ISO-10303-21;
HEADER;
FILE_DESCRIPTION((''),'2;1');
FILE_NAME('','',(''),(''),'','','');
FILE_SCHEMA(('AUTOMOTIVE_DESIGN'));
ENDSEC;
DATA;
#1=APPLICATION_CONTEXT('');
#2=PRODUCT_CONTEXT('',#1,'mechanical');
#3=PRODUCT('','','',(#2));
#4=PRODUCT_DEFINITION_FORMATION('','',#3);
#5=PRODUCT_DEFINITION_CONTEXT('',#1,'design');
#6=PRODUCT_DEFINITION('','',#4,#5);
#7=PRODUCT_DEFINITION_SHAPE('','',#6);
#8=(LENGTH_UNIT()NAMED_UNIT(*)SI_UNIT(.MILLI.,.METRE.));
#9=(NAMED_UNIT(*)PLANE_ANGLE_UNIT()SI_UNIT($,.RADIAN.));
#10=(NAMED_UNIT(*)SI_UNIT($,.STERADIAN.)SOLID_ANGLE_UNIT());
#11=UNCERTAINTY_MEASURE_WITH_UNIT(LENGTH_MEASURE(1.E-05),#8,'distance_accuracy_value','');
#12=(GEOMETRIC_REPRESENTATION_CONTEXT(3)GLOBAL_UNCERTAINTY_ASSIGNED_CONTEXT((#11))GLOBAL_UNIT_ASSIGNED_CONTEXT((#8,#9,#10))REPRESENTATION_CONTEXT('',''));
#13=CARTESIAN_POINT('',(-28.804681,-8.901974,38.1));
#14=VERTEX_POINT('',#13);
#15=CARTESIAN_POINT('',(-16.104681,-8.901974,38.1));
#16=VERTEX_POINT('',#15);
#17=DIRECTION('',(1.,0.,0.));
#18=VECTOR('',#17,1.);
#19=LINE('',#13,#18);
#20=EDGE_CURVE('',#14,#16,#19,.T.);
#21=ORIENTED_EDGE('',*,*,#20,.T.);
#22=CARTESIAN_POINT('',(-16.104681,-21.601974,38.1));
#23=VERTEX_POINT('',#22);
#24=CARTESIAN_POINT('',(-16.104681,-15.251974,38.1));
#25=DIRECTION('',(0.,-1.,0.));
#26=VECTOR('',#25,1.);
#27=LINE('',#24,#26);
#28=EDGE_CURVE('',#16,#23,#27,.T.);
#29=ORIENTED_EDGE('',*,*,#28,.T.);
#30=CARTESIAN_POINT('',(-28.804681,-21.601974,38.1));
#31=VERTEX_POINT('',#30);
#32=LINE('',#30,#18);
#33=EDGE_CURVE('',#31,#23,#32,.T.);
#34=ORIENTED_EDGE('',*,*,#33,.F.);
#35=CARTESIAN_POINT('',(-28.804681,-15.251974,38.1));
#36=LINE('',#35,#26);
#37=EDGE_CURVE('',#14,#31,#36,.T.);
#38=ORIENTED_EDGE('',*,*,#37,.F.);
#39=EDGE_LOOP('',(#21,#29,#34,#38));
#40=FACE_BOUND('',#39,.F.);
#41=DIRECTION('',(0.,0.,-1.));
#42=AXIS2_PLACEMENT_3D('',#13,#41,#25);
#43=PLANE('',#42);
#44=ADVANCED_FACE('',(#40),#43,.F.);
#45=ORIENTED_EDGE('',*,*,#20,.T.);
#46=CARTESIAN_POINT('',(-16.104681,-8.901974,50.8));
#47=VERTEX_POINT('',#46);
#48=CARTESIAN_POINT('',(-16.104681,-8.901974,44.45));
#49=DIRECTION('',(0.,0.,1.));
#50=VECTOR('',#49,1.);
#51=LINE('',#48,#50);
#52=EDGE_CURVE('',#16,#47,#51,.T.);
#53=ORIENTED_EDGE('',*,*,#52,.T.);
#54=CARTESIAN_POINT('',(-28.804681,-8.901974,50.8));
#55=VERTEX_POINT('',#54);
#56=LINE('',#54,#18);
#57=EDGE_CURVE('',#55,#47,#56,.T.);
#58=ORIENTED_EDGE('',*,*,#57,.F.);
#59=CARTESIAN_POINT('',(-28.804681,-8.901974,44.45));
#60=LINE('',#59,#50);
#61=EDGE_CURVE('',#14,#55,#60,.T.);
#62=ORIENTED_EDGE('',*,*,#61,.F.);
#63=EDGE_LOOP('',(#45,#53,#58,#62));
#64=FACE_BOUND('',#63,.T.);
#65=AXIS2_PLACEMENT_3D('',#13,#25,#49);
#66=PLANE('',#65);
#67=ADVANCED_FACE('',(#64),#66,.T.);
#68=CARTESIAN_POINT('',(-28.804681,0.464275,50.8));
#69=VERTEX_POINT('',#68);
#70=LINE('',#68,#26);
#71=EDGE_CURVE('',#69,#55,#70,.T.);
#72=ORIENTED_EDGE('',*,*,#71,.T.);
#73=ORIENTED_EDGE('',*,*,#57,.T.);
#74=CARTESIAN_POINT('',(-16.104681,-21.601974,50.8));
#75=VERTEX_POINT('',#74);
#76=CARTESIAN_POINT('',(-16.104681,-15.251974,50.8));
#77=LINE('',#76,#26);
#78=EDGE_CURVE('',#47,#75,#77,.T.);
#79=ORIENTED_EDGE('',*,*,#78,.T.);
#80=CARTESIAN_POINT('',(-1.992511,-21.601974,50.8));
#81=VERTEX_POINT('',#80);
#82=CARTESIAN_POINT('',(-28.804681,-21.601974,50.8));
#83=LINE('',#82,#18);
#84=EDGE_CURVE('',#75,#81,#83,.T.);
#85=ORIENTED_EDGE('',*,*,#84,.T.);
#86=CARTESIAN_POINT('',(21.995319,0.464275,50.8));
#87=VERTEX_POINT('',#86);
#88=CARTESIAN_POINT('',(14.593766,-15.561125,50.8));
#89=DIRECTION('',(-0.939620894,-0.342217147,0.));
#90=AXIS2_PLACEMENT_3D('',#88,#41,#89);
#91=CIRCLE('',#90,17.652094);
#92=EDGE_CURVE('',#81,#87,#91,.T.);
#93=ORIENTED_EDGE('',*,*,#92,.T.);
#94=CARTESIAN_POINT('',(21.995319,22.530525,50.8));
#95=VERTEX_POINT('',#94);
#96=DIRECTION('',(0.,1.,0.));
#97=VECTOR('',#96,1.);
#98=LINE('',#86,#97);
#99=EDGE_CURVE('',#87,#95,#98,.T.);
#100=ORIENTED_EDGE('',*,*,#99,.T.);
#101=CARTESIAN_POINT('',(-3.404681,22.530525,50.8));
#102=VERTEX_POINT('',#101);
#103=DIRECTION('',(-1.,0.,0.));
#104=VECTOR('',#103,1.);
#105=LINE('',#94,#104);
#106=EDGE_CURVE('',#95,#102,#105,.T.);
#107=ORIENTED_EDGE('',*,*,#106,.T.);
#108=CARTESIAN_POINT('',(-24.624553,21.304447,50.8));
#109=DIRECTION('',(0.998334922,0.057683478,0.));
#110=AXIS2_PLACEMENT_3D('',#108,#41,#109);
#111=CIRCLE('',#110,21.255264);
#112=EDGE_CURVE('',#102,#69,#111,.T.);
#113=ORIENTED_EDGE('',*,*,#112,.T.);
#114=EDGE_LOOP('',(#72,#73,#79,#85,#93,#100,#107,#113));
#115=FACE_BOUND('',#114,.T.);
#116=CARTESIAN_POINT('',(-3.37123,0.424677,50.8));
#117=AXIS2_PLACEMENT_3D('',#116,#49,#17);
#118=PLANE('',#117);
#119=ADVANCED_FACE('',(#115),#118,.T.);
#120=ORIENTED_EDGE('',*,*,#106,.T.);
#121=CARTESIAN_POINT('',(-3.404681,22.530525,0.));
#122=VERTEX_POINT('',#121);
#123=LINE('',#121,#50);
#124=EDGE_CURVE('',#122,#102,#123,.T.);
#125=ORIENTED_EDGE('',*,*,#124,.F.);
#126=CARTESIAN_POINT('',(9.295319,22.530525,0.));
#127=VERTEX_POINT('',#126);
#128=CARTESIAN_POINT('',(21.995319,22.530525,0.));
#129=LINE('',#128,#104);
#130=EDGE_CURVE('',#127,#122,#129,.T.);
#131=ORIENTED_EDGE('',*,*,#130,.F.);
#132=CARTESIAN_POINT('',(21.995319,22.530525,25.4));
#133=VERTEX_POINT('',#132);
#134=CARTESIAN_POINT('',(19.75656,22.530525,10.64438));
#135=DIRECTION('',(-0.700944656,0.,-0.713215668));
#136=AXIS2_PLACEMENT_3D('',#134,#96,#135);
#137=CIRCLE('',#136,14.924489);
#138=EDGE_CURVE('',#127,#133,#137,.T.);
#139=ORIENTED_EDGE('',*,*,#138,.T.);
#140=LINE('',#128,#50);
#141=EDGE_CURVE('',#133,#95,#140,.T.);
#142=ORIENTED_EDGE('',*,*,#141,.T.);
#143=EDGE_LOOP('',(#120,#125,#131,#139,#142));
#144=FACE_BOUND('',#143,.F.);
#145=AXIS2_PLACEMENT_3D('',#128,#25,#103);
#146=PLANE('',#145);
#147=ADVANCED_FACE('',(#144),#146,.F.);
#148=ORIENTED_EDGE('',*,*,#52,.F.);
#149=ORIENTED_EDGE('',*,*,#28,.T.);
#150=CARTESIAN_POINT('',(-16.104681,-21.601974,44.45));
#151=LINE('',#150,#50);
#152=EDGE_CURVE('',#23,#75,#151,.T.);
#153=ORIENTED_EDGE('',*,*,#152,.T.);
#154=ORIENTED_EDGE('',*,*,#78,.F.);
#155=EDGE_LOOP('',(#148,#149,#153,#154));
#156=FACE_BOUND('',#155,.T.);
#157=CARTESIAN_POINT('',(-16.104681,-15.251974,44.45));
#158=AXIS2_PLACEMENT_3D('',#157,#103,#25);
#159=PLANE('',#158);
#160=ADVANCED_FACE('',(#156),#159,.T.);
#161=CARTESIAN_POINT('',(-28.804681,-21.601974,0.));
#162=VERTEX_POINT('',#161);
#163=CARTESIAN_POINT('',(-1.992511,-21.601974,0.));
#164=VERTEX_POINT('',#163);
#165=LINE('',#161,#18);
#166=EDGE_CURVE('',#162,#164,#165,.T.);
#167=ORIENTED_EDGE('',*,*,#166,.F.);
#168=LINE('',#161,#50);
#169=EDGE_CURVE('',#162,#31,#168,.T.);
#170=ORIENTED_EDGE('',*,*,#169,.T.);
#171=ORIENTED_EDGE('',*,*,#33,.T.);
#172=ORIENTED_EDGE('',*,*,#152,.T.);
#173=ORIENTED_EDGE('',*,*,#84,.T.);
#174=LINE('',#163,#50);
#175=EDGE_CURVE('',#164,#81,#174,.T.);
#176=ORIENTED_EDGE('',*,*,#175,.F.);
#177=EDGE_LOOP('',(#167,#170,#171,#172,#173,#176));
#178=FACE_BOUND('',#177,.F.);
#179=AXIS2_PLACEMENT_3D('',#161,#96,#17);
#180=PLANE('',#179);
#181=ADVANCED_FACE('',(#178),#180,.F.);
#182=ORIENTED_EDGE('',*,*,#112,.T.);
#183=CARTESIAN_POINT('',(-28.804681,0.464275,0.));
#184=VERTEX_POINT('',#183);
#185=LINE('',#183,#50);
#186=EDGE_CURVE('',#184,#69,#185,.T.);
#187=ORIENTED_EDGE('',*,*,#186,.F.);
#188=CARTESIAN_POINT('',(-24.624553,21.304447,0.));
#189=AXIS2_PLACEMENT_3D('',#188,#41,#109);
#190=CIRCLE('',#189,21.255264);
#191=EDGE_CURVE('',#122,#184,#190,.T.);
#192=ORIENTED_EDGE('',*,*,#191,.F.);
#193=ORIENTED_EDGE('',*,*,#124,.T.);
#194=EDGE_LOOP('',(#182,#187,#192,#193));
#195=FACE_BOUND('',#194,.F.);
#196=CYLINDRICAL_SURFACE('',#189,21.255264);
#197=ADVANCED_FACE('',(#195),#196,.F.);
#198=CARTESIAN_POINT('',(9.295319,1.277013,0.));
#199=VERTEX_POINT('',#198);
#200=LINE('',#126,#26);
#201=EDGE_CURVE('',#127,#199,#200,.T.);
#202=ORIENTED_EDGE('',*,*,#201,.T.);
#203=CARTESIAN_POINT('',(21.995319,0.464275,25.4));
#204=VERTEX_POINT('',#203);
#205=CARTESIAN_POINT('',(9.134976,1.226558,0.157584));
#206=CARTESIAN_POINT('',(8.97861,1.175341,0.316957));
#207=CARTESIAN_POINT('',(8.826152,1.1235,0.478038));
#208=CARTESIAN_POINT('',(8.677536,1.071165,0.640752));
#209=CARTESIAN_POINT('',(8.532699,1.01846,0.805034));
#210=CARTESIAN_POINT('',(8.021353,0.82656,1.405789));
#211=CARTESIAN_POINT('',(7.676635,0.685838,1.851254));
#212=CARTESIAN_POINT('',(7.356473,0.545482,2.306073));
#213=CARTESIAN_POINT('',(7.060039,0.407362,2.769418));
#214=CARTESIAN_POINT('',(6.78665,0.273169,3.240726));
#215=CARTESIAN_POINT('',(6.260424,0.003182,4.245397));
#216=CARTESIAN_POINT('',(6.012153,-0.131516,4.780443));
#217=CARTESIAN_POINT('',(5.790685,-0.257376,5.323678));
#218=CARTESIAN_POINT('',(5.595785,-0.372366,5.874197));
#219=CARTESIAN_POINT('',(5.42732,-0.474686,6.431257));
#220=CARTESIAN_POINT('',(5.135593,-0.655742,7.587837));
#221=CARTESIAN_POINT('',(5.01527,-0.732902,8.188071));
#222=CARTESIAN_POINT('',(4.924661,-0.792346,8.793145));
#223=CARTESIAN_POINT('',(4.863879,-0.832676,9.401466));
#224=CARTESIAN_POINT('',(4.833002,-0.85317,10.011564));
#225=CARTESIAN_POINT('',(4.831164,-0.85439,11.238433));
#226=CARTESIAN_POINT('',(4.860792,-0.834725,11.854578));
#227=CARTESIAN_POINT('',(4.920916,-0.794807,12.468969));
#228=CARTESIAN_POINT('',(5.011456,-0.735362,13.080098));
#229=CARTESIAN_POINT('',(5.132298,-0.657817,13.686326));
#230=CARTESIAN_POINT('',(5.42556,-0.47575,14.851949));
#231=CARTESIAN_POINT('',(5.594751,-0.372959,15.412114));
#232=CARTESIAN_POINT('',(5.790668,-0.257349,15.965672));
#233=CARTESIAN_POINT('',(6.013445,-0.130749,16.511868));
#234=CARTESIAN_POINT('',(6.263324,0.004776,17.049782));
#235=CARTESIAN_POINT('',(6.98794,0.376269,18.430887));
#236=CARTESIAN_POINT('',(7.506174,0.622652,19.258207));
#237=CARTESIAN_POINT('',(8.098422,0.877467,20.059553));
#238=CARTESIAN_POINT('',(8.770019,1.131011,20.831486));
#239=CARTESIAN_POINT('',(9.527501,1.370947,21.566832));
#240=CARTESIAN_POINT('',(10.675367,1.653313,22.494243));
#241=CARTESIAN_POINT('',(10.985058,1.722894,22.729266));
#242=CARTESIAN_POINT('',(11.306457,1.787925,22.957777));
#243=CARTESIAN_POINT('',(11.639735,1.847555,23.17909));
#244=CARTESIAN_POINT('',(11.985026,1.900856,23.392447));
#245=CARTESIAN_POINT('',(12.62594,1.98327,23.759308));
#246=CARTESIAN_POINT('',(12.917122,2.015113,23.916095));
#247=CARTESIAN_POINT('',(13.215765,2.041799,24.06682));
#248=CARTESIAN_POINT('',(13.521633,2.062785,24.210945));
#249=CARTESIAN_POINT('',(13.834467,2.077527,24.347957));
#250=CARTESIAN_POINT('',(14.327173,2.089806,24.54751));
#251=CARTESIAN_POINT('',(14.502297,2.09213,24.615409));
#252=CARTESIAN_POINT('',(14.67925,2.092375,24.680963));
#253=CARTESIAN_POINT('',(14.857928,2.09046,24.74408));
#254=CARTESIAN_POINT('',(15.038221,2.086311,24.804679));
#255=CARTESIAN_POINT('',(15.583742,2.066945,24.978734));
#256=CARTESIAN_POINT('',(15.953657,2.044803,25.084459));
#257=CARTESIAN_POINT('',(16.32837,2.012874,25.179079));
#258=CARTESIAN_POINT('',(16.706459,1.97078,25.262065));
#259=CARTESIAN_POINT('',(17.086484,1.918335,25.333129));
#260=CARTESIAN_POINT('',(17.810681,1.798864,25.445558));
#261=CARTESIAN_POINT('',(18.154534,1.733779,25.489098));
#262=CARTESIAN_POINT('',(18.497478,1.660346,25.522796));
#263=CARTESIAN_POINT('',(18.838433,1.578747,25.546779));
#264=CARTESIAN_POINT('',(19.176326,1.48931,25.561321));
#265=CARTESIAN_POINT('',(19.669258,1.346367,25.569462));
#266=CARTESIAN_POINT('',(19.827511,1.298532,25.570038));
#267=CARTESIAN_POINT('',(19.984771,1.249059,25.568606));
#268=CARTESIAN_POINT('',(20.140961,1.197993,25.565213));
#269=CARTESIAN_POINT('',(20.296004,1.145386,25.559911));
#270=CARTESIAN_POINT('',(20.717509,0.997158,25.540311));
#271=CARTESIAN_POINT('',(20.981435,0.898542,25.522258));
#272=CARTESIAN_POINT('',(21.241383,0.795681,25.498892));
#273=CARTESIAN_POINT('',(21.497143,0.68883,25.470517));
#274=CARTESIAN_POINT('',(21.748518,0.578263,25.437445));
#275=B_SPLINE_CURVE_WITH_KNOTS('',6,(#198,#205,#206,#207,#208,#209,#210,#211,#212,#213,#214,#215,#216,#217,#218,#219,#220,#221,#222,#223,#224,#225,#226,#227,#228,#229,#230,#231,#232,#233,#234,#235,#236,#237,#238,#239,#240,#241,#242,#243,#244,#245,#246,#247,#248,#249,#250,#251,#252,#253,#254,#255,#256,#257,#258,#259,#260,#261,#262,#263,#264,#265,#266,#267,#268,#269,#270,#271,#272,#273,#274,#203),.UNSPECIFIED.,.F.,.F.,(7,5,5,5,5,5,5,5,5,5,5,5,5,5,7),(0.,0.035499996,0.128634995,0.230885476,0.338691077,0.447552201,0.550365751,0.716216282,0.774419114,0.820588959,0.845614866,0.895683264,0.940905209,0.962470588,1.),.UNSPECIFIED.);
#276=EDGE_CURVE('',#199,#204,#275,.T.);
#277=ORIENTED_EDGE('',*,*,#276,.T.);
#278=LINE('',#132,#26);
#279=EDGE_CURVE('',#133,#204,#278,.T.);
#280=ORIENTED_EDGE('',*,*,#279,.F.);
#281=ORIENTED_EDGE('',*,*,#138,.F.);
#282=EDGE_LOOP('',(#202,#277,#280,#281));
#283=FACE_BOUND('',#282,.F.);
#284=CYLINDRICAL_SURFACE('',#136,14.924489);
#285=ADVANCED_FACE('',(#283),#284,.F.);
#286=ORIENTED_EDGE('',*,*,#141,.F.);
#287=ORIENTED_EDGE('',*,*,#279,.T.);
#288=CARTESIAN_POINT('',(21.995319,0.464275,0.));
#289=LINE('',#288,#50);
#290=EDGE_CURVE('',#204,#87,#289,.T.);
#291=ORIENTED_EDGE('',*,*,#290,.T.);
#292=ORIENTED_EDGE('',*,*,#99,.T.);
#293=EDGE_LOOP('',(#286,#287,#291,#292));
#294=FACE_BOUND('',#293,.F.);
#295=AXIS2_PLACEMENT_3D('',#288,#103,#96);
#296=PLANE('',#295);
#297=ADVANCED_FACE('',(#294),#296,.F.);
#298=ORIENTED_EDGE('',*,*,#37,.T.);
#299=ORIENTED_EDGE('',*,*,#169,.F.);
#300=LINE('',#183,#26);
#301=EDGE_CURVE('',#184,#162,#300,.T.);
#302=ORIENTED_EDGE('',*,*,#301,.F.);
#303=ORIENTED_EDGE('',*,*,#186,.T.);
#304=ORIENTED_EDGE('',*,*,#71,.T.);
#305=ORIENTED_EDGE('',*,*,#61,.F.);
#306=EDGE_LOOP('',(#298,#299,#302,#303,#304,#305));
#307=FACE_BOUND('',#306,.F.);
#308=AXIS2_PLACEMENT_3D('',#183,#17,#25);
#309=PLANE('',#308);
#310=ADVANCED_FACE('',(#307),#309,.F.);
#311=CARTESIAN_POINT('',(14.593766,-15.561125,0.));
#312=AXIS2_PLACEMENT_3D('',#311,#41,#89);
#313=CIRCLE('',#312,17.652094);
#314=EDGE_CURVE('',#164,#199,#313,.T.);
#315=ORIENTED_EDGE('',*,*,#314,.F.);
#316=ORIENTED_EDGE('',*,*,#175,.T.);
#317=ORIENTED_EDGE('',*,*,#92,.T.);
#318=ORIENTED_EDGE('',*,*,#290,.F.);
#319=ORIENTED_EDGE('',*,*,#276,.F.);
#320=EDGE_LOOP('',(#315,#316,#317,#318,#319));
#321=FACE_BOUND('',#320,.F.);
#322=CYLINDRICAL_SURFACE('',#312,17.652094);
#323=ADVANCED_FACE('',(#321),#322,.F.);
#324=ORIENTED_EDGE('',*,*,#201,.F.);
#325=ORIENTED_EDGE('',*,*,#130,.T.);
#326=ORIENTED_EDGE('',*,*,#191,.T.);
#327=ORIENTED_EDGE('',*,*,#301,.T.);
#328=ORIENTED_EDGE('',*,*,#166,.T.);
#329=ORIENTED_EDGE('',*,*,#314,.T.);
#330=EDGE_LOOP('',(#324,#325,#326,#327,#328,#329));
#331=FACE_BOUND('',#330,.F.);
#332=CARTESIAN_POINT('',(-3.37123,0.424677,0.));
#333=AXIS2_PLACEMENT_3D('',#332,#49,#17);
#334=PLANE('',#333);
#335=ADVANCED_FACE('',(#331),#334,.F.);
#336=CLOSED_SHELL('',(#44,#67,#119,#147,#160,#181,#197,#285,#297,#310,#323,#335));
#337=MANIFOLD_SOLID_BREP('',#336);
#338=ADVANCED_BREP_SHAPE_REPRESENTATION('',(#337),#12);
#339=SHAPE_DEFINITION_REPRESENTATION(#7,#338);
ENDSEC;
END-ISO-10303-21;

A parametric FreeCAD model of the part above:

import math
import FreeCAD as App
import Part
import Sketcher

V = App.Vector
Q = App.Units.Quantity


def add_polygon(sketch, points):
    """Adds a closed chain of lines whose ends are joined by coincident constraints."""
    first, n = sketch.GeometryCount, len(points)
    for a, b in zip(points, points[1:] + points[:1]):
        sketch.addGeometry(Part.LineSegment(App.Vector(*a, 0), App.Vector(*b, 0)), False)
    for i in range(n):
        sketch.addConstraint(Sketcher.Constraint("Coincident", first + i, 2, first + (i + 1) % n, 1))

doc = App.newDocument("Part")
body = doc.addObject("PartDesign::Body", "Body")

# Sketch on XY plane
sketch1 = body.newObject("Sketcher::SketchObject", "Sketch")
sketch1.AttachmentSupport = (doc.getObject("XY_Plane"), [""])
sketch1.MapMode = "FlatFace"
sketch1.addGeometry(Part.LineSegment(V(21.995319, 22.530525, 0), V(-3.404681, 22.530525, 0)), False)
sketch1.addGeometry(Part.ArcOfCircle(Part.Circle(V(-24.624553, 21.304447, 0), V(0, 0, 1), 21.255264), math.radians(-101.341898), math.radians(3.306855)), False)
sketch1.addGeometry(Part.LineSegment(V(-28.804681, 0.464275, 0), V(-28.804681, -21.601974, 0)), False)
sketch1.addGeometry(Part.LineSegment(V(-28.804681, -21.601974, 0), V(-1.992511, -21.601974, 0)), False)
sketch1.addGeometry(Part.ArcOfCircle(Part.Circle(V(14.593766, -15.561125, 0), V(0, 0, 1), 17.652094), math.radians(65.20949), math.radians(200.012012)), False)
sketch1.addGeometry(Part.LineSegment(V(21.995319, 0.464275, 0), V(21.995319, 22.530525, 0)), False)
sketch1.addConstraint(Sketcher.Constraint("Coincident", 0, 2, 1, 2))
sketch1.addConstraint(Sketcher.Constraint("Coincident", 1, 1, 2, 1))
sketch1.addConstraint(Sketcher.Constraint("Coincident", 2, 2, 3, 1))
sketch1.addConstraint(Sketcher.Constraint("Coincident", 3, 2, 4, 2))
sketch1.addConstraint(Sketcher.Constraint("Coincident", 4, 1, 5, 1))
sketch1.addConstraint(Sketcher.Constraint("Coincident", 5, 2, 0, 1))
sketch1.addConstraint(Sketcher.Constraint("Horizontal", 0))
sketch1.addConstraint(Sketcher.Constraint("Vertical", 2))
sketch1.addConstraint(Sketcher.Constraint("Horizontal", 3))
sketch1.addConstraint(Sketcher.Constraint("Vertical", 5))
sketch1.addConstraint(Sketcher.Constraint("Horizontal", 1, 1, 4, 1))
sketch1.addConstraint(Sketcher.Constraint("Equal", 2, 5))
sketch1.addConstraint(Sketcher.Constraint("DistanceX", 0, 2, 0, 1, Q("1 in")))
sketch1.addConstraint(Sketcher.Constraint("DistanceX", 1, 1, 0, 2, Q("1 in")))
sketch1.addConstraint(Sketcher.Constraint("Radius", 1, Q("21.255264 mm")))
sketch1.addConstraint(Sketcher.Constraint("Radius", 4, Q("17.652094 mm")))
sketch1.addConstraint(Sketcher.Constraint("DistanceY", 2, 2, 0, 2, Q("1.7375 in")))
sketch1.addConstraint(Sketcher.Constraint("DistanceX", 3, 1, 3, 2, Q("26.81217 mm")))
sketch1.addConstraint(Sketcher.Constraint("DistanceX", 0, 2, -1, 1, Q("3.404681 mm")))
sketch1.addConstraint(Sketcher.Constraint("DistanceY", -1, 1, 1, 3, Q("21.304447 mm")))
pad1 = body.newObject("PartDesign::Pad", "Pad")
pad1.Profile = sketch1
pad1.Length = Q("2 in")

# Sketch on YZ plane
sketch2 = body.newObject("Sketcher::SketchObject", "Sketch001")
sketch2.AttachmentSupport = (doc.getObject("YZ_Plane"), [""])
sketch2.MapMode = "FlatFace"
sketch2.AttachmentOffset = App.Placement(V(0, 0, -28.804681), App.Rotation())
add_polygon(sketch2, [(-8.901974, 50.8), (-8.901974, 38.1), (-21.601974, 38.1), (-21.601974, 50.8)])  # lines 0-3
sketch2.addConstraint(Sketcher.Constraint("Vertical", 0))
sketch2.addConstraint(Sketcher.Constraint("Horizontal", 1))
sketch2.addConstraint(Sketcher.Constraint("Vertical", 2))
sketch2.addConstraint(Sketcher.Constraint("Horizontal", 3))
sketch2.addConstraint(Sketcher.Constraint("Equal", 3, 0))
sketch2.addConstraint(Sketcher.Constraint("DistanceX", 1, 2, 1, 1, Q("0.5 in")))
sketch2.addConstraint(Sketcher.Constraint("DistanceY", -1, 1, 2, 2, Q("2 in")))
sketch2.addConstraint(Sketcher.Constraint("DistanceX", 0, 2, -1, 1, Q("8.901974 mm")))
pocket1 = body.newObject("PartDesign::Pocket", "Pocket")
pocket1.Profile = sketch2
pocket1.Length = Q("0.5 in")
pocket1.Reversed = True

# Sketch on XZ plane
sketch3 = body.newObject("Sketcher::SketchObject", "Sketch002")
sketch3.AttachmentSupport = (doc.getObject("XZ_Plane"), [""])
sketch3.MapMode = "FlatFace"
sketch3.AttachmentOffset = App.Placement(V(0, 0, -22.530525), App.Rotation())
sketch3.addGeometry(Part.LineSegment(V(21.995319, 0, 0), V(9.295319, 0, 0)), False)
sketch3.addGeometry(Part.ArcOfCircle(Part.Circle(V(19.75656, 10.64438, 0), V(0, 0, 1), 14.924489), math.radians(81.372741), math.radians(225.497157)), False)
sketch3.addGeometry(Part.LineSegment(V(21.995319, 25.4, 0), V(21.995319, 0, 0)), False)
sketch3.addConstraint(Sketcher.Constraint("Coincident", 0, 2, 1, 2))
sketch3.addConstraint(Sketcher.Constraint("Coincident", 1, 1, 2, 1))
sketch3.addConstraint(Sketcher.Constraint("Coincident", 2, 2, 0, 1))
sketch3.addConstraint(Sketcher.Constraint("Horizontal", 0))
sketch3.addConstraint(Sketcher.Constraint("Vertical", 2))
sketch3.addConstraint(Sketcher.Constraint("PointOnObject", 0, 2, -1))
sketch3.addConstraint(Sketcher.Constraint("DistanceY", 2, 2, 2, 1, Q("1 in")))
sketch3.addConstraint(Sketcher.Constraint("DistanceX", 0, 2, 0, 1, Q("0.5 in")))
sketch3.addConstraint(Sketcher.Constraint("Radius", 1, Q("14.924489 mm")))
sketch3.addConstraint(Sketcher.Constraint("DistanceX", -1, 1, 1, 3, Q("19.75656 mm")))
pocket2 = body.newObject("PartDesign::Pocket", "Pocket001")
pocket2.Profile = sketch3
pocket2.Length = Q("1 in")
pocket2.Reversed = True

doc.recompute()
